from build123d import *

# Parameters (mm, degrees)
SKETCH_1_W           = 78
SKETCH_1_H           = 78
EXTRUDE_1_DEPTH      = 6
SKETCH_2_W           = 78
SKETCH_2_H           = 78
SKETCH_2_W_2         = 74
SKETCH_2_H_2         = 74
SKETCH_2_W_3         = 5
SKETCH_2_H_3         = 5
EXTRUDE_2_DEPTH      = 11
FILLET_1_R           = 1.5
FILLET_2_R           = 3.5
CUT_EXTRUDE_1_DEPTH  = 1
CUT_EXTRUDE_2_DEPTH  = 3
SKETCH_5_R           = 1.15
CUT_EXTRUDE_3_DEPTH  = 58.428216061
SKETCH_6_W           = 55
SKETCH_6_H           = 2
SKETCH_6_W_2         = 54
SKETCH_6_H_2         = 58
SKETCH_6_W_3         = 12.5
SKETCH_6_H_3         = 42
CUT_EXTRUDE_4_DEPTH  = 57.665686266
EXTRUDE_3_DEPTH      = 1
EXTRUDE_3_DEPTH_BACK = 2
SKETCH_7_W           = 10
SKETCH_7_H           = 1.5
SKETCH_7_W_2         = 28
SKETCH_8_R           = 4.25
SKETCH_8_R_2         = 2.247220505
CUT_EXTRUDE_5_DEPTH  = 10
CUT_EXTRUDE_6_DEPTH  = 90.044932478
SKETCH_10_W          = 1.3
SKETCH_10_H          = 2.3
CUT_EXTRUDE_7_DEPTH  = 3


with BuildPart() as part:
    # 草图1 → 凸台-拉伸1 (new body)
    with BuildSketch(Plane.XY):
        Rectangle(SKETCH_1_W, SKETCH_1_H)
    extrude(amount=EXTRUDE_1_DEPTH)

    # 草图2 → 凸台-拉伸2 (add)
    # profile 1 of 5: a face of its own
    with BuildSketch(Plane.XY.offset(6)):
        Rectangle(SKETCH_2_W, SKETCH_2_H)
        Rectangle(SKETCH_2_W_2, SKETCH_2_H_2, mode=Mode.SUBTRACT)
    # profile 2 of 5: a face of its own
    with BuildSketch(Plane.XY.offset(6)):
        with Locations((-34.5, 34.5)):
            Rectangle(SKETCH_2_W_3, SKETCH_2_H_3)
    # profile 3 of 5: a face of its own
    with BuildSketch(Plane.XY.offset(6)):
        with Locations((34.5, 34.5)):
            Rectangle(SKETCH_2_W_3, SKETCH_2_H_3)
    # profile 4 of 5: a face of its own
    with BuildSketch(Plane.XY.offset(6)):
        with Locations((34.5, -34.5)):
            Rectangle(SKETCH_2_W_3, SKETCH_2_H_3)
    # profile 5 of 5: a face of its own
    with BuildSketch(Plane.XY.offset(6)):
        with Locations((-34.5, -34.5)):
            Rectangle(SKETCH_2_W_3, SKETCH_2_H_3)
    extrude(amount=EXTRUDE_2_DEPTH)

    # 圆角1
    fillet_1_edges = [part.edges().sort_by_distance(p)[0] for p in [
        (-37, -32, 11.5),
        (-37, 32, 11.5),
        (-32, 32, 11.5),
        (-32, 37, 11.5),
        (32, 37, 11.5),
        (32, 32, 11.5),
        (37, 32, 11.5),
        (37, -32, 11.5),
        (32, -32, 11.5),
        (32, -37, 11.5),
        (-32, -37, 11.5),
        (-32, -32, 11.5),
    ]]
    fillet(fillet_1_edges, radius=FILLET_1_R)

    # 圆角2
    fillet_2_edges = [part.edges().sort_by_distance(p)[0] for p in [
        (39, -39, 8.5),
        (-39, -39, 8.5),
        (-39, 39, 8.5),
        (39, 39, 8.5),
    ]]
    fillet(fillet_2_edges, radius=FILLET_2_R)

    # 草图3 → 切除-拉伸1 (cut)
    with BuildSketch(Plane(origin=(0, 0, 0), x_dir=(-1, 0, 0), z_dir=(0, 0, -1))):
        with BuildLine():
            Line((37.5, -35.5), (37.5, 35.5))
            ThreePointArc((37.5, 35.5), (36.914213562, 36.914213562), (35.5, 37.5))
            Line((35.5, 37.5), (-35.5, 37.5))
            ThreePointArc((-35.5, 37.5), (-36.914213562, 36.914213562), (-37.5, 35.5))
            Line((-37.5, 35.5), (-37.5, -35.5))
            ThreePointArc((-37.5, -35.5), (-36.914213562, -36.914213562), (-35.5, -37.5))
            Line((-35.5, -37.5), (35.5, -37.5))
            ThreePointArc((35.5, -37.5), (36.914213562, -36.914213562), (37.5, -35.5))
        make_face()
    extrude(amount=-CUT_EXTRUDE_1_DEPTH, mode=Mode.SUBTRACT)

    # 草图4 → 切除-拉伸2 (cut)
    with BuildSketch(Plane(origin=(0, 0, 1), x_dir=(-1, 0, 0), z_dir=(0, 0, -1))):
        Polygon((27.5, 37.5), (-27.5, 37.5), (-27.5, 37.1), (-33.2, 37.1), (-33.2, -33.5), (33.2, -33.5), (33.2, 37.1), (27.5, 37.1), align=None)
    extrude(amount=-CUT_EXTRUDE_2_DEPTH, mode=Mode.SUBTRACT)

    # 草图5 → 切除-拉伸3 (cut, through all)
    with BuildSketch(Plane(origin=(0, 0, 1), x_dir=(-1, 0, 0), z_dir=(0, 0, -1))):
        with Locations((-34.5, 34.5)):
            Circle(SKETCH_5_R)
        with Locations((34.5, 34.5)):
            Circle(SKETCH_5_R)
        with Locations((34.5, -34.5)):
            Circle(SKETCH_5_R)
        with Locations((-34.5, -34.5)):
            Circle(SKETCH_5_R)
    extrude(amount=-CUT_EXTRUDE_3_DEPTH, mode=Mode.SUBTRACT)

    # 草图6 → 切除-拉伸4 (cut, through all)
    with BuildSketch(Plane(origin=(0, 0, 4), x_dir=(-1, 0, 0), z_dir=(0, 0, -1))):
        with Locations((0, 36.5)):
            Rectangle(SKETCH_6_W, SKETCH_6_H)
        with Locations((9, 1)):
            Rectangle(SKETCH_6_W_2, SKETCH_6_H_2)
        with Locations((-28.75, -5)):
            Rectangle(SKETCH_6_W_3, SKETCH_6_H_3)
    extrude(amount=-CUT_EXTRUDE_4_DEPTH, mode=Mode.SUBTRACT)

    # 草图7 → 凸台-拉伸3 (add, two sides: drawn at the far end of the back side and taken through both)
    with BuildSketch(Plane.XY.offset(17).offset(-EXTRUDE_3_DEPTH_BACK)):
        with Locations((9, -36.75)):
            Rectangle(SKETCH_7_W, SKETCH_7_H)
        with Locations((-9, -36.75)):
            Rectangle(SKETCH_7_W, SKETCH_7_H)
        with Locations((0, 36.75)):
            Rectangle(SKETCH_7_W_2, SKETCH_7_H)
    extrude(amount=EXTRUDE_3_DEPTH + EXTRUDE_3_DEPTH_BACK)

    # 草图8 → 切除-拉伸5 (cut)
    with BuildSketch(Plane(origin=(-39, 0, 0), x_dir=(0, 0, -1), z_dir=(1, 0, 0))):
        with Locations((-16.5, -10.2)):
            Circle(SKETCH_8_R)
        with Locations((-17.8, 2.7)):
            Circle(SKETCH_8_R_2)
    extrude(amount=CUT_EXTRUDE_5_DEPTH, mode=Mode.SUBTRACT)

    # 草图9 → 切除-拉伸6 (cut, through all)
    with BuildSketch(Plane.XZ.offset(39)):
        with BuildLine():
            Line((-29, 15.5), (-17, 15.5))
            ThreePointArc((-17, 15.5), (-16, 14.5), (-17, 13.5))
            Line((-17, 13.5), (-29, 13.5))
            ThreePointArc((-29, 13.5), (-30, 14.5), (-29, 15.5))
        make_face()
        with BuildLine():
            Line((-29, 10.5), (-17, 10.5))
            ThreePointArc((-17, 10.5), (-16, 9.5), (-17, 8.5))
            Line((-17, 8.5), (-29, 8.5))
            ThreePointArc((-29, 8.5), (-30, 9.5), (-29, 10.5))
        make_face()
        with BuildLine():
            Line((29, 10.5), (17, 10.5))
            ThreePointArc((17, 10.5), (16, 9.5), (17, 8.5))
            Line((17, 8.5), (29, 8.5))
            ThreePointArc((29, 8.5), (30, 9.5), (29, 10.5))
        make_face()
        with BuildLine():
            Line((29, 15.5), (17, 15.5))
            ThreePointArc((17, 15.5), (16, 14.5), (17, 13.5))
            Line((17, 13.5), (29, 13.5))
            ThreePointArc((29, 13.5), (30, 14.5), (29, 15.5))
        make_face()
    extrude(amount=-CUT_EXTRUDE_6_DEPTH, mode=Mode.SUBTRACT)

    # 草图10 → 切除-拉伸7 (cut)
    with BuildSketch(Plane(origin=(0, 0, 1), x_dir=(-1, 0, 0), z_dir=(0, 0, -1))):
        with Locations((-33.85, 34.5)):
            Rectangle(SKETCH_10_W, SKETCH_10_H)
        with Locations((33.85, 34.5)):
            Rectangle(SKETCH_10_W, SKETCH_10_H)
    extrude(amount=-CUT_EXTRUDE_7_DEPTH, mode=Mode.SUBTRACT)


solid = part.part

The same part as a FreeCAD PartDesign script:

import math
import FreeCAD as App
import Part
import Sketcher
from FreeCAD import Vector


def edges_at(feature, points):
    """Names of the edges that pass closest to the given points."""
    edges = feature.Shape.Edges
    near = lambda p: min(range(len(edges)), key=lambda i: edges[i].distToShape(Part.Vertex(*p))[0])
    return sorted({f"Edge{near(p) + 1}" for p in points})


def add_polygon(sketch, points):
    """Adds a closed chain of lines whose ends are joined by coincident constraints."""
    first, n = sketch.GeometryCount, len(points)
    for a, b in zip(points, points[1:] + points[:1]):
        sketch.addGeometry(Part.LineSegment(App.Vector(*a, 0), App.Vector(*b, 0)), False)
    for i in range(n):
        sketch.addConstraint(Sketcher.Constraint("Coincident", first + i, 2, first + (i + 1) % n, 1))

doc = App.newDocument("Part")
body = doc.addObject("PartDesign::Body", "Body")

sketch1 = doc.addObject("Sketcher::SketchObject", "Sketch")
body.addObject(sketch1)
sketch1.AttachmentSupport = (doc.XY_Plane, [""])
sketch1.MapMode = "FlatFace"
add_polygon(sketch1, [(-39, 39), (-39, -39), (39, -39), (39, 39)])
sketch1.addConstraint([
    Sketcher.Constraint("Vertical", 0),
    Sketcher.Constraint("Horizontal", 1),
    Sketcher.Constraint("Vertical", 2),
    Sketcher.Constraint("Horizontal", 3),
    Sketcher.Constraint("Symmetric", 0, 2, 2, 2, -1, 1),
    Sketcher.Constraint("Equal", 3, 0),
    Sketcher.Constraint("DistanceX", 1, 1, 1, 2, 78.0),
])
pad1 = doc.addObject("PartDesign::Pad", "Pad")
body.addObject(pad1)
pad1.Profile = sketch1
pad1.Length = 6

sketch2 = doc.addObject("Sketcher::SketchObject", "Sketch001")
body.addObject(sketch2)
sketch2.AttachmentSupport = (doc.XY_Plane, [""])
sketch2.MapMode = "FlatFace"
sketch2.AttachmentOffset = App.Placement(Vector(0, 0, 6), App.Rotation())
add_polygon(sketch2, [(-39, 39), (-39, -39), (39, -39), (39, 39)])
add_polygon(sketch2, [(32, -37), (-32, -37), (-32, -32), (-37, -32), (-37, 32), (-32, 32), (-32, 37), (32, 37), (32, 32), (37, 32), (37, -32), (32, -32)])
sketch2.addConstraint([
    Sketcher.Constraint("Vertical", 0),
    Sketcher.Constraint("Horizontal", 1),
    Sketcher.Constraint("Vertical", 2),
    Sketcher.Constraint("Horizontal", 3),
    Sketcher.Constraint("Horizontal", 4),
    Sketcher.Constraint("Vertical", 5),
    Sketcher.Constraint("Horizontal", 6),
    Sketcher.Constraint("Vertical", 7),
    Sketcher.Constraint("Horizontal", 8),
    Sketcher.Constraint("Vertical", 9),
    Sketcher.Constraint("Horizontal", 10),
    Sketcher.Constraint("Vertical", 11),
    Sketcher.Constraint("Horizontal", 12),
    Sketcher.Constraint("Vertical", 13),
    Sketcher.Constraint("Horizontal", 14),
    Sketcher.Constraint("Vertical", 15),
    Sketcher.Constraint("Symmetric", 0, 2, 2, 2, -1, 1),
    Sketcher.Constraint("Symmetric", 4, 2, 10, 2, -1, 1),
    Sketcher.Constraint("Symmetric", 6, 2, 12, 2, -1, 1),
    Sketcher.Constraint("Symmetric", 8, 2, 14, 2, -1, 1),
    Sketcher.Constraint("Symmetric", 8, 2, 11, 2, -2),
    Sketcher.Constraint("Equal", 3, 0),
    Sketcher.Constraint("Equal", 14, 5),
    Sketcher.Constraint("Equal", 10, 7),
    Sketcher.Constraint("DistanceX", 1, 1, 1, 2, 78.0),
    Sketcher.Constraint("DistanceX", 4, 2, 4, 1, 64.0),
    Sketcher.Constraint("DistanceX", 6, 2, 6, 1, 5.0),
])
pad2 = doc.addObject("PartDesign::Pad", "Pad001")
body.addObject(pad2)
pad2.Profile = sketch2
pad2.Length = 11
doc.recompute()

fillet = doc.addObject("PartDesign::Fillet", "Fillet")
body.addObject(fillet)
fillet.Base = (pad2, edges_at(pad2, [
    (-37, -32, 11.5),
    (-37, 32, 11.5),
    (-32, 32, 11.5),
    (-32, 37, 11.5),
    (32, 37, 11.5),
    (32, 32, 11.5),
    (37, 32, 11.5),
    (37, -32, 11.5),
    (32, -32, 11.5),
    (32, -37, 11.5),
    (-32, -37, 11.5),
    (-32, -32, 11.5),
]))
fillet.Radius = 1.5
doc.recompute()

fillet2 = doc.addObject("PartDesign::Fillet", "Fillet001")
body.addObject(fillet2)
fillet2.Base = (fillet, edges_at(fillet, [
    (39, -39, 8.5),
    (-39, -39, 8.5),
    (-39, 39, 8.5),
    (39, 39, 8.5),
]))
fillet2.Radius = 3.5

sketch3 = doc.addObject("Sketcher::SketchObject", "Sketch002")
body.addObject(sketch3)
sketch3.AttachmentSupport = (doc.XY_Plane, [""])
sketch3.MapMode = "FlatFace"
sketch3.addGeometry([
    Part.LineSegment(Vector(-37.5, -35.5, 0), Vector(-37.5, 35.5, 0)),
    Part.ArcOfCircle(Part.Circle(Vector(-35.5, 35.5, 0), Vector(0, 0, 1), 2), math.radians(90), math.radians(180)),
    Part.LineSegment(Vector(-35.5, 37.5, 0), Vector(35.5, 37.5, 0)),
    Part.ArcOfCircle(Part.Circle(Vector(35.5, 35.5, 0), Vector(0, 0, 1), 2), math.radians(0), math.radians(90)),
    Part.LineSegment(Vector(37.5, 35.5, 0), Vector(37.5, -35.5, 0)),
    Part.ArcOfCircle(Part.Circle(Vector(35.5, -35.5, 0), Vector(0, 0, 1), 2), math.radians(-90), math.radians(0)),
    Part.LineSegment(Vector(35.5, -37.5, 0), Vector(-35.5, -37.5, 0)),
    Part.ArcOfCircle(Part.Circle(Vector(-35.5, -35.5, 0), Vector(0, 0, 1), 2), math.radians(-180), math.radians(-90)),
], False)
sketch3.addConstraint([
    Sketcher.Constraint("Tangent", 0, 2, 1, 2),
    Sketcher.Constraint("Tangent", 1, 1, 2, 1),
    Sketcher.Constraint("Tangent", 2, 2, 3, 2),
    Sketcher.Constraint("Tangent", 3, 1, 4, 1),
    Sketcher.Constraint("Tangent", 4, 2, 5, 2),
    Sketcher.Constraint("Tangent", 5, 1, 6, 1),
    Sketcher.Constraint("Tangent", 6, 2, 7, 2),
    Sketcher.Constraint("Tangent", 7, 1, 0, 1),
    Sketcher.Constraint("Vertical", 0),
    Sketcher.Constraint("Horizontal", 2),
    Sketcher.Constraint("Vertical", 4),
    Sketcher.Constraint("Horizontal", 6),
    Sketcher.Constraint("Equal", 1, 3),
    Sketcher.Constraint("Equal", 3, 5),
    Sketcher.Constraint("Equal", 5, 7),
    Sketcher.Constraint("Symmetric", 1, 3, 5, 3, -1, 1),
    Sketcher.Constraint("Equal", 6, 0),
    Sketcher.Constraint("Radius", 1, 2.0),
    Sketcher.Constraint("DistanceX", 2, 1, 2, 2, 71.0),
])
pocket1 = doc.addObject("PartDesign::Pocket", "Pocket")
body.addObject(pocket1)
pocket1.Profile = sketch3
pocket1.Length = 1
pocket1.Reversed = True

sketch4 = doc.addObject("Sketcher::SketchObject", "Sketch003")
body.addObject(sketch4)
sketch4.AttachmentSupport = (doc.XY_Plane, [""])
sketch4.MapMode = "FlatFace"
sketch4.AttachmentOffset = App.Placement(Vector(0, 0, 1), App.Rotation())
add_polygon(sketch4, [(-27.5, 37.5), (27.5, 37.5), (27.5, 37.1), (33.2, 37.1), (33.2, -33.5), (-33.2, -33.5), (-33.2, 37.1), (-27.5, 37.1)])
sketch4.addConstraint([
    Sketcher.Constraint("Horizontal", 0),
    Sketcher.Constraint("Vertical", 1),
    Sketcher.Constraint("Horizontal", 2),
    Sketcher.Constraint("Vertical", 3),
    Sketcher.Constraint("Horizontal", 4),
    Sketcher.Constraint("Vertical", 5),
    Sketcher.Constraint("Horizontal", 6),
    Sketcher.Constraint("Vertical", 7),
    Sketcher.Constraint("Symmetric", 2, 2, 5, 2, -2),
    Sketcher.Constraint("Equal", 2, 6),
    Sketcher.Constraint("DistanceX", 0, 1, 0, 2, 55.0),
    Sketcher.Constraint("DistanceX", 2, 1, 2, 2, 5.7),
    Sketcher.Constraint("DistanceY", 1, 2, 1, 1, 0.4),
    Sketcher.Constraint("DistanceY", 3, 2, 3, 1, 70.6),
    Sketcher.Constraint("DistanceY", -1, 1, 0, 2, 37.5),
])
pocket2 = doc.addObject("PartDesign::Pocket", "Pocket001")
body.addObject(pocket2)
pocket2.Profile = sketch4
pocket2.Length = 3
pocket2.Reversed = True

sketch5 = doc.addObject("Sketcher::SketchObject", "Sketch004")
body.addObject(sketch5)
sketch5.AttachmentSupport = (doc.XY_Plane, [""])
sketch5.MapMode = "FlatFace"
sketch5.AttachmentOffset = App.Placement(Vector(0, 0, 1), App.Rotation())
sketch5.addGeometry([
    Part.Circle(Vector(34.5, 34.5, 0), Vector(0, 0, 1), 1.15),
    Part.Circle(Vector(-34.5, 34.5, 0), Vector(0, 0, 1), 1.15),
    Part.Circle(Vector(-34.5, -34.5, 0), Vector(0, 0, 1), 1.15),
    Part.Circle(Vector(34.5, -34.5, 0), Vector(0, 0, 1), 1.15),
], False)
sketch5.addConstraint([
    Sketcher.Constraint("Equal", 0, 1),
    Sketcher.Constraint("Equal", 1, 2),
    Sketcher.Constraint("Equal", 2, 3),
    Sketcher.Constraint("Symmetric", 0, 3, 2, 3, -1, 1),
    Sketcher.Constraint("Symmetric", 1, 3, 3, 3, -1, 1),
    Sketcher.Constraint("Symmetric", 0, 3, 1, 3, -2),
    Sketcher.Constraint("Diameter", 0, 2.3),
    Sketcher.Constraint("DistanceX", 1, 3, 0, 3, 69.0),
    Sketcher.Constraint("DistanceY", 2, 3, 1, 3, 69.0),
])
pocket3 = doc.addObject("PartDesign::Pocket", "Pocket002")
body.addObject(pocket3)
pocket3.Profile = sketch5
pocket3.Type = "ThroughAll"
pocket3.Reversed = True

sketch6 = doc.addObject("Sketcher::SketchObject", "Sketch005")
body.addObject(sketch6)
sketch6.AttachmentSupport = (doc.XY_Plane, [""])
sketch6.MapMode = "FlatFace"
sketch6.AttachmentOffset = App.Placement(Vector(0, 0, 4), App.Rotation())
add_polygon(sketch6, [(27.5, 37.5), (27.5, 35.5), (-27.5, 35.5), (-27.5, 37.5)])
add_polygon(sketch6, [(18, 30), (18, -28), (-36, -28), (-36, 30)])
add_polygon(sketch6, [(35, 16), (35, -26), (22.5, -26), (22.5, 16)])
sketch6.addConstraint([
    Sketcher.Constraint("Vertical", 0),
    Sketcher.Constraint("Horizontal", 1),
    Sketcher.Constraint("Vertical", 2),
    Sketcher.Constraint("Horizontal", 3),
    Sketcher.Constraint("Vertical", 4),
    Sketcher.Constraint("Horizontal", 5),
    Sketcher.Constraint("Vertical", 6),
    Sketcher.Constraint("Horizontal", 7),
    Sketcher.Constraint("Vertical", 8),
    Sketcher.Constraint("Horizontal", 9),
    Sketcher.Constraint("Vertical", 10),
    Sketcher.Constraint("Horizontal", 11),
    Sketcher.Constraint("DistanceX", 1, 2, 1, 1, 55.0),
    Sketcher.Constraint("DistanceX", 5, 2, 5, 1, 54.0),
    Sketcher.Constraint("DistanceY", 0, 2, 0, 1, 2.0),
    Sketcher.Constraint("DistanceY", 4, 2, 4, 1, 58.0),
    Sketcher.Constraint("DistanceY", 8, 2, 8, 1, 42.0),
    Sketcher.Constraint("DistanceX", 9, 2, 9, 1, 12.5),
    Sketcher.Constraint("DistanceX", -1, 1, 4, 2, 18.0),
    Sketcher.Constraint("DistanceY", 4, 2, -1, 1, 28.0),
    Sketcher.Constraint("DistanceX", -1, 1, 8, 2, 35.0),
    Sketcher.Constraint("DistanceY", 8, 2, -1, 1, 26.0),
    Sketcher.Constraint("DistanceX", 9, 2, 0, 2, 5.0),
    Sketcher.Constraint("DistanceY", -1, 1, 0, 2, 35.5),
])
pocket4 = doc.addObject("PartDesign::Pocket", "Pocket003")
body.addObject(pocket4)
pocket4.Profile = sketch6
pocket4.Type = "ThroughAll"
pocket4.Reversed = True

sketch7 = doc.addObject("Sketcher::SketchObject", "Sketch006")
body.addObject(sketch7)
sketch7.AttachmentSupport = (doc.XY_Plane, [""])
sketch7.MapMode = "FlatFace"
sketch7.AttachmentOffset = App.Placement(Vector(0, 0, 17), App.Rotation())
add_polygon(sketch7, [(4, -36), (4, -37.5), (14, -37.5), (14, -36)])
add_polygon(sketch7, [(-14, -36), (-14, -37.5), (-4, -37.5), (-4, -36)])
add_polygon(sketch7, [(-14, 37.5), (-14, 36), (14, 36), (14, 37.5)])
sketch7.addConstraint([
    Sketcher.Constraint("Vertical", 0),
    Sketcher.Constraint("Horizontal", 1),
    Sketcher.Constraint("Vertical", 2),
    Sketcher.Constraint("Horizontal", 3),
    Sketcher.Constraint("Vertical", 4),
    Sketcher.Constraint("Horizontal", 5),
    Sketcher.Constraint("Vertical", 6),
    Sketcher.Constraint("Horizontal", 7),
    Sketcher.Constraint("Vertical", 8),
    Sketcher.Constraint("Horizontal", 9),
    Sketcher.Constraint("Vertical", 10),
    Sketcher.Constraint("Horizontal", 11),
    Sketcher.Constraint("Symmetric", 2, 2, 8, 2, -1, 1),
    Sketcher.Constraint("Symmetric", 7, 2, 9, 2, -1, 1),
    Sketcher.Constraint("Symmetric", 1, 2, 4, 2, -2),
    Sketcher.Constraint("Equal", 3, 5),
    Sketcher.Constraint("Equal", 6, 8),
    Sketcher.Constraint("DistanceX", 1, 1, 1, 2, 10.0),
    Sketcher.Constraint("DistanceX", 9, 1, 9, 2, 28.0),
    Sketcher.Constraint("DistanceY", 0, 2, 0, 1, 1.5),
    Sketcher.Constraint("DistanceY", 2, 2, -1, 1, 36.0),
])
pad3 = doc.addObject("PartDesign::Pad", "Pad002")
body.addObject(pad3)
pad3.Profile = sketch7
pad3.Type = "TwoLengths"
pad3.Length = 1
pad3.Length2 = 2

sketch8 = doc.addObject("Sketcher::SketchObject", "Sketch007")
body.addObject(sketch8)
sketch8.AttachmentSupport = (doc.YZ_Plane, [""])
sketch8.MapMode = "FlatFace"
sketch8.AttachmentOffset = App.Placement(Vector(0, 0, -39), App.Rotation())
sketch8.addGeometry([
    Part.Circle(Vector(-10.2, 16.5, 0), Vector(0, 0, 1), 4.25),
    Part.Circle(Vector(2.7, 17.8, 0), Vector(0, 0, 1), 2.247221),
], False)
sketch8.addConstraint([
    Sketcher.Constraint("Diameter", 0, 8.5),
    Sketcher.Constraint("DistanceX", 0, 3, -1, 1, 10.2),
    Sketcher.Constraint("DistanceY", -1, 1, 0, 3, 16.5),
    Sketcher.Constraint("DistanceX", -1, 1, 1, 3, 2.7),
    Sketcher.Constraint("DistanceY", -1, 1, 1, 3, 17.8),
    Sketcher.Constraint("Diameter", 1, 4.494441),
])
pocket5 = doc.addObject("PartDesign::Pocket", "Pocket004")
body.addObject(pocket5)
pocket5.Profile = sketch8
pocket5.Length = 10
pocket5.Reversed = True

sketch9 = doc.addObject("Sketcher::SketchObject", "Sketch008")
body.addObject(sketch9)
sketch9.AttachmentSupport = (doc.XZ_Plane, [""])
sketch9.MapMode = "FlatFace"
sketch9.AttachmentOffset = App.Placement(Vector(0, 0, 39), App.Rotation())
sketch9.addGeometry([
    Part.LineSegment(Vector(-17, 15.5, 0), Vector(-29, 15.5, 0)),
    Part.ArcOfCircle(Part.Circle(Vector(-29, 14.5, 0), Vector(0, 0, 1), 1), math.radians(90), math.radians(270)),
    Part.LineSegment(Vector(-29, 13.5, 0), Vector(-17, 13.5, 0)),
    Part.ArcOfCircle(Part.Circle(Vector(-17, 14.5, 0), Vector(0, 0, 1), 1), math.radians(-90), math.radians(90)),
    Part.LineSegment(Vector(-17, 10.5, 0), Vector(-29, 10.5, 0)),
    Part.ArcOfCircle(Part.Circle(Vector(-29, 9.5, 0), Vector(0, 0, 1), 1), math.radians(90), math.radians(270)),
    Part.LineSegment(Vector(-29, 8.5, 0), Vector(-17, 8.5, 0)),
    Part.ArcOfCircle(Part.Circle(Vector(-17, 9.5, 0), Vector(0, 0, 1), 1), math.radians(-90), math.radians(90)),
    Part.LineSegment(Vector(29, 10.5, 0), Vector(17, 10.5, 0)),
    Part.ArcOfCircle(Part.Circle(Vector(17, 9.5, 0), Vector(0, 0, 1), 1), math.radians(90), math.radians(270)),
    Part.LineSegment(Vector(17, 8.5, 0), Vector(29, 8.5, 0)),
    Part.ArcOfCircle(Part.Circle(Vector(29, 9.5, 0), Vector(0, 0, 1), 1), math.radians(-90), math.radians(90)),
    Part.LineSegment(Vector(29, 15.5, 0), Vector(17, 15.5, 0)),
    Part.ArcOfCircle(Part.Circle(Vector(17, 14.5, 0), Vector(0, 0, 1), 1), math.radians(90), math.radians(270)),
    Part.LineSegment(Vector(17, 13.5, 0), Vector(29, 13.5, 0)),
    Part.ArcOfCircle(Part.Circle(Vector(29, 14.5, 0), Vector(0, 0, 1), 1), math.radians(-90), math.radians(90)),
], False)
sketch9.addConstraint([
    Sketcher.Constraint("Tangent", 0, 2, 1, 1),
    Sketcher.Constraint("Tangent", 1, 2, 2, 1),
    Sketcher.Constraint("Tangent", 2, 2, 3, 1),
    Sketcher.Constraint("Tangent", 3, 2, 0, 1),
    Sketcher.Constraint("Tangent", 4, 2, 5, 1),
    Sketcher.Constraint("Tangent", 5, 2, 6, 1),
    Sketcher.Constraint("Tangent", 6, 2, 7, 1),
    Sketcher.Constraint("Tangent", 7, 2, 4, 1),
    Sketcher.Constraint("Tangent", 8, 2, 9, 1),
    Sketcher.Constraint("Tangent", 9, 2, 10, 1),
    Sketcher.Constraint("Tangent", 10, 2, 11, 1),
    Sketcher.Constraint("Tangent", 11, 2, 8, 1),
    Sketcher.Constraint("Tangent", 12, 2, 13, 1),
    Sketcher.Constraint("Tangent", 13, 2, 14, 1),
    Sketcher.Constraint("Tangent", 14, 2, 15, 1),
    Sketcher.Constraint("Tangent", 15, 2, 12, 1),
    Sketcher.Constraint("Horizontal", 0),
    Sketcher.Constraint("Horizontal", 2),
    Sketcher.Constraint("Horizontal", 4),
    Sketcher.Constraint("Horizontal", 6),
    Sketcher.Constraint("Horizontal", 8),
    Sketcher.Constraint("Horizontal", 10),
    Sketcher.Constraint("Horizontal", 12),
    Sketcher.Constraint("Horizontal", 14),
    Sketcher.Constraint("Equal", 3, 5),
    Sketcher.Constraint("Equal", 7, 9),
    Sketcher.Constraint("Equal", 11, 13),
    Sketcher.Constraint("Symmetric", 7, 3, 9, 3, -2),
    Sketcher.Constraint("Symmetric", 3, 3, 13, 3, -2),
    Sketcher.Constraint("Vertical", 1, 3, 5, 3),
    Sketcher.Constraint("Vertical", 3, 3, 7, 3),
    Sketcher.Constraint("Vertical", 11, 3, 15, 3),
    Sketcher.Constraint("Equal", 6, 8),
    Sketcher.Constraint("Radius", 1, 1.0),
    Sketcher.Constraint("DistanceX", 0, 2, 0, 1, 12.0),
    Sketcher.Constraint("DistanceX", 1, 3, -1, 1, 29.0),
    Sketcher.Constraint("DistanceY", 5, 3, 1, 3, 5.0),
    Sketcher.Constraint("DistanceY", -1, 1, 1, 3, 14.5),
])
pocket6 = doc.addObject("PartDesign::Pocket", "Pocket005")
body.addObject(pocket6)
pocket6.Profile = sketch9
pocket6.Type = "ThroughAll"

sketch10 = doc.addObject("Sketcher::SketchObject", "Sketch009")
body.addObject(sketch10)
sketch10.AttachmentSupport = (doc.XY_Plane, [""])
sketch10.MapMode = "FlatFace"
sketch10.AttachmentOffset = App.Placement(Vector(0, 0, 1), App.Rotation())
add_polygon(sketch10, [(34.5, 35.65), (34.5, 33.35), (33.2, 33.35), (33.2, 35.65)])
add_polygon(sketch10, [(-33.2, 35.65), (-33.2, 33.35), (-34.5, 33.35), (-34.5, 35.65)])
sketch10.addConstraint([
    Sketcher.Constraint("Vertical", 0),
    Sketcher.Constraint("Horizontal", 1),
    Sketcher.Constraint("Vertical", 2),
    Sketcher.Constraint("Horizontal", 3),
    Sketcher.Constraint("Vertical", 4),
    Sketcher.Constraint("Horizontal", 5),
    Sketcher.Constraint("Vertical", 6),
    Sketcher.Constraint("Horizontal", 7),
    Sketcher.Constraint("Symmetric", 1, 2, 4, 2, -2),
    Sketcher.Constraint("Symmetric", 3, 2, 6, 2, -2),
    Sketcher.Constraint("DistanceX", 1, 2, 1, 1, 1.3),
    Sketcher.Constraint("DistanceY", 0, 2, 0, 1, 2.3),
    Sketcher.Constraint("DistanceX", 5, 2, 0, 2, 69.0),
    Sketcher.Constraint("DistanceY", -1, 1, 0, 2, 33.35),
])
pocket7 = doc.addObject("PartDesign::Pocket", "Pocket006")
body.addObject(pocket7)
pocket7.Profile = sketch10
pocket7.Length = 3
pocket7.Reversed = True

doc.recompute()
